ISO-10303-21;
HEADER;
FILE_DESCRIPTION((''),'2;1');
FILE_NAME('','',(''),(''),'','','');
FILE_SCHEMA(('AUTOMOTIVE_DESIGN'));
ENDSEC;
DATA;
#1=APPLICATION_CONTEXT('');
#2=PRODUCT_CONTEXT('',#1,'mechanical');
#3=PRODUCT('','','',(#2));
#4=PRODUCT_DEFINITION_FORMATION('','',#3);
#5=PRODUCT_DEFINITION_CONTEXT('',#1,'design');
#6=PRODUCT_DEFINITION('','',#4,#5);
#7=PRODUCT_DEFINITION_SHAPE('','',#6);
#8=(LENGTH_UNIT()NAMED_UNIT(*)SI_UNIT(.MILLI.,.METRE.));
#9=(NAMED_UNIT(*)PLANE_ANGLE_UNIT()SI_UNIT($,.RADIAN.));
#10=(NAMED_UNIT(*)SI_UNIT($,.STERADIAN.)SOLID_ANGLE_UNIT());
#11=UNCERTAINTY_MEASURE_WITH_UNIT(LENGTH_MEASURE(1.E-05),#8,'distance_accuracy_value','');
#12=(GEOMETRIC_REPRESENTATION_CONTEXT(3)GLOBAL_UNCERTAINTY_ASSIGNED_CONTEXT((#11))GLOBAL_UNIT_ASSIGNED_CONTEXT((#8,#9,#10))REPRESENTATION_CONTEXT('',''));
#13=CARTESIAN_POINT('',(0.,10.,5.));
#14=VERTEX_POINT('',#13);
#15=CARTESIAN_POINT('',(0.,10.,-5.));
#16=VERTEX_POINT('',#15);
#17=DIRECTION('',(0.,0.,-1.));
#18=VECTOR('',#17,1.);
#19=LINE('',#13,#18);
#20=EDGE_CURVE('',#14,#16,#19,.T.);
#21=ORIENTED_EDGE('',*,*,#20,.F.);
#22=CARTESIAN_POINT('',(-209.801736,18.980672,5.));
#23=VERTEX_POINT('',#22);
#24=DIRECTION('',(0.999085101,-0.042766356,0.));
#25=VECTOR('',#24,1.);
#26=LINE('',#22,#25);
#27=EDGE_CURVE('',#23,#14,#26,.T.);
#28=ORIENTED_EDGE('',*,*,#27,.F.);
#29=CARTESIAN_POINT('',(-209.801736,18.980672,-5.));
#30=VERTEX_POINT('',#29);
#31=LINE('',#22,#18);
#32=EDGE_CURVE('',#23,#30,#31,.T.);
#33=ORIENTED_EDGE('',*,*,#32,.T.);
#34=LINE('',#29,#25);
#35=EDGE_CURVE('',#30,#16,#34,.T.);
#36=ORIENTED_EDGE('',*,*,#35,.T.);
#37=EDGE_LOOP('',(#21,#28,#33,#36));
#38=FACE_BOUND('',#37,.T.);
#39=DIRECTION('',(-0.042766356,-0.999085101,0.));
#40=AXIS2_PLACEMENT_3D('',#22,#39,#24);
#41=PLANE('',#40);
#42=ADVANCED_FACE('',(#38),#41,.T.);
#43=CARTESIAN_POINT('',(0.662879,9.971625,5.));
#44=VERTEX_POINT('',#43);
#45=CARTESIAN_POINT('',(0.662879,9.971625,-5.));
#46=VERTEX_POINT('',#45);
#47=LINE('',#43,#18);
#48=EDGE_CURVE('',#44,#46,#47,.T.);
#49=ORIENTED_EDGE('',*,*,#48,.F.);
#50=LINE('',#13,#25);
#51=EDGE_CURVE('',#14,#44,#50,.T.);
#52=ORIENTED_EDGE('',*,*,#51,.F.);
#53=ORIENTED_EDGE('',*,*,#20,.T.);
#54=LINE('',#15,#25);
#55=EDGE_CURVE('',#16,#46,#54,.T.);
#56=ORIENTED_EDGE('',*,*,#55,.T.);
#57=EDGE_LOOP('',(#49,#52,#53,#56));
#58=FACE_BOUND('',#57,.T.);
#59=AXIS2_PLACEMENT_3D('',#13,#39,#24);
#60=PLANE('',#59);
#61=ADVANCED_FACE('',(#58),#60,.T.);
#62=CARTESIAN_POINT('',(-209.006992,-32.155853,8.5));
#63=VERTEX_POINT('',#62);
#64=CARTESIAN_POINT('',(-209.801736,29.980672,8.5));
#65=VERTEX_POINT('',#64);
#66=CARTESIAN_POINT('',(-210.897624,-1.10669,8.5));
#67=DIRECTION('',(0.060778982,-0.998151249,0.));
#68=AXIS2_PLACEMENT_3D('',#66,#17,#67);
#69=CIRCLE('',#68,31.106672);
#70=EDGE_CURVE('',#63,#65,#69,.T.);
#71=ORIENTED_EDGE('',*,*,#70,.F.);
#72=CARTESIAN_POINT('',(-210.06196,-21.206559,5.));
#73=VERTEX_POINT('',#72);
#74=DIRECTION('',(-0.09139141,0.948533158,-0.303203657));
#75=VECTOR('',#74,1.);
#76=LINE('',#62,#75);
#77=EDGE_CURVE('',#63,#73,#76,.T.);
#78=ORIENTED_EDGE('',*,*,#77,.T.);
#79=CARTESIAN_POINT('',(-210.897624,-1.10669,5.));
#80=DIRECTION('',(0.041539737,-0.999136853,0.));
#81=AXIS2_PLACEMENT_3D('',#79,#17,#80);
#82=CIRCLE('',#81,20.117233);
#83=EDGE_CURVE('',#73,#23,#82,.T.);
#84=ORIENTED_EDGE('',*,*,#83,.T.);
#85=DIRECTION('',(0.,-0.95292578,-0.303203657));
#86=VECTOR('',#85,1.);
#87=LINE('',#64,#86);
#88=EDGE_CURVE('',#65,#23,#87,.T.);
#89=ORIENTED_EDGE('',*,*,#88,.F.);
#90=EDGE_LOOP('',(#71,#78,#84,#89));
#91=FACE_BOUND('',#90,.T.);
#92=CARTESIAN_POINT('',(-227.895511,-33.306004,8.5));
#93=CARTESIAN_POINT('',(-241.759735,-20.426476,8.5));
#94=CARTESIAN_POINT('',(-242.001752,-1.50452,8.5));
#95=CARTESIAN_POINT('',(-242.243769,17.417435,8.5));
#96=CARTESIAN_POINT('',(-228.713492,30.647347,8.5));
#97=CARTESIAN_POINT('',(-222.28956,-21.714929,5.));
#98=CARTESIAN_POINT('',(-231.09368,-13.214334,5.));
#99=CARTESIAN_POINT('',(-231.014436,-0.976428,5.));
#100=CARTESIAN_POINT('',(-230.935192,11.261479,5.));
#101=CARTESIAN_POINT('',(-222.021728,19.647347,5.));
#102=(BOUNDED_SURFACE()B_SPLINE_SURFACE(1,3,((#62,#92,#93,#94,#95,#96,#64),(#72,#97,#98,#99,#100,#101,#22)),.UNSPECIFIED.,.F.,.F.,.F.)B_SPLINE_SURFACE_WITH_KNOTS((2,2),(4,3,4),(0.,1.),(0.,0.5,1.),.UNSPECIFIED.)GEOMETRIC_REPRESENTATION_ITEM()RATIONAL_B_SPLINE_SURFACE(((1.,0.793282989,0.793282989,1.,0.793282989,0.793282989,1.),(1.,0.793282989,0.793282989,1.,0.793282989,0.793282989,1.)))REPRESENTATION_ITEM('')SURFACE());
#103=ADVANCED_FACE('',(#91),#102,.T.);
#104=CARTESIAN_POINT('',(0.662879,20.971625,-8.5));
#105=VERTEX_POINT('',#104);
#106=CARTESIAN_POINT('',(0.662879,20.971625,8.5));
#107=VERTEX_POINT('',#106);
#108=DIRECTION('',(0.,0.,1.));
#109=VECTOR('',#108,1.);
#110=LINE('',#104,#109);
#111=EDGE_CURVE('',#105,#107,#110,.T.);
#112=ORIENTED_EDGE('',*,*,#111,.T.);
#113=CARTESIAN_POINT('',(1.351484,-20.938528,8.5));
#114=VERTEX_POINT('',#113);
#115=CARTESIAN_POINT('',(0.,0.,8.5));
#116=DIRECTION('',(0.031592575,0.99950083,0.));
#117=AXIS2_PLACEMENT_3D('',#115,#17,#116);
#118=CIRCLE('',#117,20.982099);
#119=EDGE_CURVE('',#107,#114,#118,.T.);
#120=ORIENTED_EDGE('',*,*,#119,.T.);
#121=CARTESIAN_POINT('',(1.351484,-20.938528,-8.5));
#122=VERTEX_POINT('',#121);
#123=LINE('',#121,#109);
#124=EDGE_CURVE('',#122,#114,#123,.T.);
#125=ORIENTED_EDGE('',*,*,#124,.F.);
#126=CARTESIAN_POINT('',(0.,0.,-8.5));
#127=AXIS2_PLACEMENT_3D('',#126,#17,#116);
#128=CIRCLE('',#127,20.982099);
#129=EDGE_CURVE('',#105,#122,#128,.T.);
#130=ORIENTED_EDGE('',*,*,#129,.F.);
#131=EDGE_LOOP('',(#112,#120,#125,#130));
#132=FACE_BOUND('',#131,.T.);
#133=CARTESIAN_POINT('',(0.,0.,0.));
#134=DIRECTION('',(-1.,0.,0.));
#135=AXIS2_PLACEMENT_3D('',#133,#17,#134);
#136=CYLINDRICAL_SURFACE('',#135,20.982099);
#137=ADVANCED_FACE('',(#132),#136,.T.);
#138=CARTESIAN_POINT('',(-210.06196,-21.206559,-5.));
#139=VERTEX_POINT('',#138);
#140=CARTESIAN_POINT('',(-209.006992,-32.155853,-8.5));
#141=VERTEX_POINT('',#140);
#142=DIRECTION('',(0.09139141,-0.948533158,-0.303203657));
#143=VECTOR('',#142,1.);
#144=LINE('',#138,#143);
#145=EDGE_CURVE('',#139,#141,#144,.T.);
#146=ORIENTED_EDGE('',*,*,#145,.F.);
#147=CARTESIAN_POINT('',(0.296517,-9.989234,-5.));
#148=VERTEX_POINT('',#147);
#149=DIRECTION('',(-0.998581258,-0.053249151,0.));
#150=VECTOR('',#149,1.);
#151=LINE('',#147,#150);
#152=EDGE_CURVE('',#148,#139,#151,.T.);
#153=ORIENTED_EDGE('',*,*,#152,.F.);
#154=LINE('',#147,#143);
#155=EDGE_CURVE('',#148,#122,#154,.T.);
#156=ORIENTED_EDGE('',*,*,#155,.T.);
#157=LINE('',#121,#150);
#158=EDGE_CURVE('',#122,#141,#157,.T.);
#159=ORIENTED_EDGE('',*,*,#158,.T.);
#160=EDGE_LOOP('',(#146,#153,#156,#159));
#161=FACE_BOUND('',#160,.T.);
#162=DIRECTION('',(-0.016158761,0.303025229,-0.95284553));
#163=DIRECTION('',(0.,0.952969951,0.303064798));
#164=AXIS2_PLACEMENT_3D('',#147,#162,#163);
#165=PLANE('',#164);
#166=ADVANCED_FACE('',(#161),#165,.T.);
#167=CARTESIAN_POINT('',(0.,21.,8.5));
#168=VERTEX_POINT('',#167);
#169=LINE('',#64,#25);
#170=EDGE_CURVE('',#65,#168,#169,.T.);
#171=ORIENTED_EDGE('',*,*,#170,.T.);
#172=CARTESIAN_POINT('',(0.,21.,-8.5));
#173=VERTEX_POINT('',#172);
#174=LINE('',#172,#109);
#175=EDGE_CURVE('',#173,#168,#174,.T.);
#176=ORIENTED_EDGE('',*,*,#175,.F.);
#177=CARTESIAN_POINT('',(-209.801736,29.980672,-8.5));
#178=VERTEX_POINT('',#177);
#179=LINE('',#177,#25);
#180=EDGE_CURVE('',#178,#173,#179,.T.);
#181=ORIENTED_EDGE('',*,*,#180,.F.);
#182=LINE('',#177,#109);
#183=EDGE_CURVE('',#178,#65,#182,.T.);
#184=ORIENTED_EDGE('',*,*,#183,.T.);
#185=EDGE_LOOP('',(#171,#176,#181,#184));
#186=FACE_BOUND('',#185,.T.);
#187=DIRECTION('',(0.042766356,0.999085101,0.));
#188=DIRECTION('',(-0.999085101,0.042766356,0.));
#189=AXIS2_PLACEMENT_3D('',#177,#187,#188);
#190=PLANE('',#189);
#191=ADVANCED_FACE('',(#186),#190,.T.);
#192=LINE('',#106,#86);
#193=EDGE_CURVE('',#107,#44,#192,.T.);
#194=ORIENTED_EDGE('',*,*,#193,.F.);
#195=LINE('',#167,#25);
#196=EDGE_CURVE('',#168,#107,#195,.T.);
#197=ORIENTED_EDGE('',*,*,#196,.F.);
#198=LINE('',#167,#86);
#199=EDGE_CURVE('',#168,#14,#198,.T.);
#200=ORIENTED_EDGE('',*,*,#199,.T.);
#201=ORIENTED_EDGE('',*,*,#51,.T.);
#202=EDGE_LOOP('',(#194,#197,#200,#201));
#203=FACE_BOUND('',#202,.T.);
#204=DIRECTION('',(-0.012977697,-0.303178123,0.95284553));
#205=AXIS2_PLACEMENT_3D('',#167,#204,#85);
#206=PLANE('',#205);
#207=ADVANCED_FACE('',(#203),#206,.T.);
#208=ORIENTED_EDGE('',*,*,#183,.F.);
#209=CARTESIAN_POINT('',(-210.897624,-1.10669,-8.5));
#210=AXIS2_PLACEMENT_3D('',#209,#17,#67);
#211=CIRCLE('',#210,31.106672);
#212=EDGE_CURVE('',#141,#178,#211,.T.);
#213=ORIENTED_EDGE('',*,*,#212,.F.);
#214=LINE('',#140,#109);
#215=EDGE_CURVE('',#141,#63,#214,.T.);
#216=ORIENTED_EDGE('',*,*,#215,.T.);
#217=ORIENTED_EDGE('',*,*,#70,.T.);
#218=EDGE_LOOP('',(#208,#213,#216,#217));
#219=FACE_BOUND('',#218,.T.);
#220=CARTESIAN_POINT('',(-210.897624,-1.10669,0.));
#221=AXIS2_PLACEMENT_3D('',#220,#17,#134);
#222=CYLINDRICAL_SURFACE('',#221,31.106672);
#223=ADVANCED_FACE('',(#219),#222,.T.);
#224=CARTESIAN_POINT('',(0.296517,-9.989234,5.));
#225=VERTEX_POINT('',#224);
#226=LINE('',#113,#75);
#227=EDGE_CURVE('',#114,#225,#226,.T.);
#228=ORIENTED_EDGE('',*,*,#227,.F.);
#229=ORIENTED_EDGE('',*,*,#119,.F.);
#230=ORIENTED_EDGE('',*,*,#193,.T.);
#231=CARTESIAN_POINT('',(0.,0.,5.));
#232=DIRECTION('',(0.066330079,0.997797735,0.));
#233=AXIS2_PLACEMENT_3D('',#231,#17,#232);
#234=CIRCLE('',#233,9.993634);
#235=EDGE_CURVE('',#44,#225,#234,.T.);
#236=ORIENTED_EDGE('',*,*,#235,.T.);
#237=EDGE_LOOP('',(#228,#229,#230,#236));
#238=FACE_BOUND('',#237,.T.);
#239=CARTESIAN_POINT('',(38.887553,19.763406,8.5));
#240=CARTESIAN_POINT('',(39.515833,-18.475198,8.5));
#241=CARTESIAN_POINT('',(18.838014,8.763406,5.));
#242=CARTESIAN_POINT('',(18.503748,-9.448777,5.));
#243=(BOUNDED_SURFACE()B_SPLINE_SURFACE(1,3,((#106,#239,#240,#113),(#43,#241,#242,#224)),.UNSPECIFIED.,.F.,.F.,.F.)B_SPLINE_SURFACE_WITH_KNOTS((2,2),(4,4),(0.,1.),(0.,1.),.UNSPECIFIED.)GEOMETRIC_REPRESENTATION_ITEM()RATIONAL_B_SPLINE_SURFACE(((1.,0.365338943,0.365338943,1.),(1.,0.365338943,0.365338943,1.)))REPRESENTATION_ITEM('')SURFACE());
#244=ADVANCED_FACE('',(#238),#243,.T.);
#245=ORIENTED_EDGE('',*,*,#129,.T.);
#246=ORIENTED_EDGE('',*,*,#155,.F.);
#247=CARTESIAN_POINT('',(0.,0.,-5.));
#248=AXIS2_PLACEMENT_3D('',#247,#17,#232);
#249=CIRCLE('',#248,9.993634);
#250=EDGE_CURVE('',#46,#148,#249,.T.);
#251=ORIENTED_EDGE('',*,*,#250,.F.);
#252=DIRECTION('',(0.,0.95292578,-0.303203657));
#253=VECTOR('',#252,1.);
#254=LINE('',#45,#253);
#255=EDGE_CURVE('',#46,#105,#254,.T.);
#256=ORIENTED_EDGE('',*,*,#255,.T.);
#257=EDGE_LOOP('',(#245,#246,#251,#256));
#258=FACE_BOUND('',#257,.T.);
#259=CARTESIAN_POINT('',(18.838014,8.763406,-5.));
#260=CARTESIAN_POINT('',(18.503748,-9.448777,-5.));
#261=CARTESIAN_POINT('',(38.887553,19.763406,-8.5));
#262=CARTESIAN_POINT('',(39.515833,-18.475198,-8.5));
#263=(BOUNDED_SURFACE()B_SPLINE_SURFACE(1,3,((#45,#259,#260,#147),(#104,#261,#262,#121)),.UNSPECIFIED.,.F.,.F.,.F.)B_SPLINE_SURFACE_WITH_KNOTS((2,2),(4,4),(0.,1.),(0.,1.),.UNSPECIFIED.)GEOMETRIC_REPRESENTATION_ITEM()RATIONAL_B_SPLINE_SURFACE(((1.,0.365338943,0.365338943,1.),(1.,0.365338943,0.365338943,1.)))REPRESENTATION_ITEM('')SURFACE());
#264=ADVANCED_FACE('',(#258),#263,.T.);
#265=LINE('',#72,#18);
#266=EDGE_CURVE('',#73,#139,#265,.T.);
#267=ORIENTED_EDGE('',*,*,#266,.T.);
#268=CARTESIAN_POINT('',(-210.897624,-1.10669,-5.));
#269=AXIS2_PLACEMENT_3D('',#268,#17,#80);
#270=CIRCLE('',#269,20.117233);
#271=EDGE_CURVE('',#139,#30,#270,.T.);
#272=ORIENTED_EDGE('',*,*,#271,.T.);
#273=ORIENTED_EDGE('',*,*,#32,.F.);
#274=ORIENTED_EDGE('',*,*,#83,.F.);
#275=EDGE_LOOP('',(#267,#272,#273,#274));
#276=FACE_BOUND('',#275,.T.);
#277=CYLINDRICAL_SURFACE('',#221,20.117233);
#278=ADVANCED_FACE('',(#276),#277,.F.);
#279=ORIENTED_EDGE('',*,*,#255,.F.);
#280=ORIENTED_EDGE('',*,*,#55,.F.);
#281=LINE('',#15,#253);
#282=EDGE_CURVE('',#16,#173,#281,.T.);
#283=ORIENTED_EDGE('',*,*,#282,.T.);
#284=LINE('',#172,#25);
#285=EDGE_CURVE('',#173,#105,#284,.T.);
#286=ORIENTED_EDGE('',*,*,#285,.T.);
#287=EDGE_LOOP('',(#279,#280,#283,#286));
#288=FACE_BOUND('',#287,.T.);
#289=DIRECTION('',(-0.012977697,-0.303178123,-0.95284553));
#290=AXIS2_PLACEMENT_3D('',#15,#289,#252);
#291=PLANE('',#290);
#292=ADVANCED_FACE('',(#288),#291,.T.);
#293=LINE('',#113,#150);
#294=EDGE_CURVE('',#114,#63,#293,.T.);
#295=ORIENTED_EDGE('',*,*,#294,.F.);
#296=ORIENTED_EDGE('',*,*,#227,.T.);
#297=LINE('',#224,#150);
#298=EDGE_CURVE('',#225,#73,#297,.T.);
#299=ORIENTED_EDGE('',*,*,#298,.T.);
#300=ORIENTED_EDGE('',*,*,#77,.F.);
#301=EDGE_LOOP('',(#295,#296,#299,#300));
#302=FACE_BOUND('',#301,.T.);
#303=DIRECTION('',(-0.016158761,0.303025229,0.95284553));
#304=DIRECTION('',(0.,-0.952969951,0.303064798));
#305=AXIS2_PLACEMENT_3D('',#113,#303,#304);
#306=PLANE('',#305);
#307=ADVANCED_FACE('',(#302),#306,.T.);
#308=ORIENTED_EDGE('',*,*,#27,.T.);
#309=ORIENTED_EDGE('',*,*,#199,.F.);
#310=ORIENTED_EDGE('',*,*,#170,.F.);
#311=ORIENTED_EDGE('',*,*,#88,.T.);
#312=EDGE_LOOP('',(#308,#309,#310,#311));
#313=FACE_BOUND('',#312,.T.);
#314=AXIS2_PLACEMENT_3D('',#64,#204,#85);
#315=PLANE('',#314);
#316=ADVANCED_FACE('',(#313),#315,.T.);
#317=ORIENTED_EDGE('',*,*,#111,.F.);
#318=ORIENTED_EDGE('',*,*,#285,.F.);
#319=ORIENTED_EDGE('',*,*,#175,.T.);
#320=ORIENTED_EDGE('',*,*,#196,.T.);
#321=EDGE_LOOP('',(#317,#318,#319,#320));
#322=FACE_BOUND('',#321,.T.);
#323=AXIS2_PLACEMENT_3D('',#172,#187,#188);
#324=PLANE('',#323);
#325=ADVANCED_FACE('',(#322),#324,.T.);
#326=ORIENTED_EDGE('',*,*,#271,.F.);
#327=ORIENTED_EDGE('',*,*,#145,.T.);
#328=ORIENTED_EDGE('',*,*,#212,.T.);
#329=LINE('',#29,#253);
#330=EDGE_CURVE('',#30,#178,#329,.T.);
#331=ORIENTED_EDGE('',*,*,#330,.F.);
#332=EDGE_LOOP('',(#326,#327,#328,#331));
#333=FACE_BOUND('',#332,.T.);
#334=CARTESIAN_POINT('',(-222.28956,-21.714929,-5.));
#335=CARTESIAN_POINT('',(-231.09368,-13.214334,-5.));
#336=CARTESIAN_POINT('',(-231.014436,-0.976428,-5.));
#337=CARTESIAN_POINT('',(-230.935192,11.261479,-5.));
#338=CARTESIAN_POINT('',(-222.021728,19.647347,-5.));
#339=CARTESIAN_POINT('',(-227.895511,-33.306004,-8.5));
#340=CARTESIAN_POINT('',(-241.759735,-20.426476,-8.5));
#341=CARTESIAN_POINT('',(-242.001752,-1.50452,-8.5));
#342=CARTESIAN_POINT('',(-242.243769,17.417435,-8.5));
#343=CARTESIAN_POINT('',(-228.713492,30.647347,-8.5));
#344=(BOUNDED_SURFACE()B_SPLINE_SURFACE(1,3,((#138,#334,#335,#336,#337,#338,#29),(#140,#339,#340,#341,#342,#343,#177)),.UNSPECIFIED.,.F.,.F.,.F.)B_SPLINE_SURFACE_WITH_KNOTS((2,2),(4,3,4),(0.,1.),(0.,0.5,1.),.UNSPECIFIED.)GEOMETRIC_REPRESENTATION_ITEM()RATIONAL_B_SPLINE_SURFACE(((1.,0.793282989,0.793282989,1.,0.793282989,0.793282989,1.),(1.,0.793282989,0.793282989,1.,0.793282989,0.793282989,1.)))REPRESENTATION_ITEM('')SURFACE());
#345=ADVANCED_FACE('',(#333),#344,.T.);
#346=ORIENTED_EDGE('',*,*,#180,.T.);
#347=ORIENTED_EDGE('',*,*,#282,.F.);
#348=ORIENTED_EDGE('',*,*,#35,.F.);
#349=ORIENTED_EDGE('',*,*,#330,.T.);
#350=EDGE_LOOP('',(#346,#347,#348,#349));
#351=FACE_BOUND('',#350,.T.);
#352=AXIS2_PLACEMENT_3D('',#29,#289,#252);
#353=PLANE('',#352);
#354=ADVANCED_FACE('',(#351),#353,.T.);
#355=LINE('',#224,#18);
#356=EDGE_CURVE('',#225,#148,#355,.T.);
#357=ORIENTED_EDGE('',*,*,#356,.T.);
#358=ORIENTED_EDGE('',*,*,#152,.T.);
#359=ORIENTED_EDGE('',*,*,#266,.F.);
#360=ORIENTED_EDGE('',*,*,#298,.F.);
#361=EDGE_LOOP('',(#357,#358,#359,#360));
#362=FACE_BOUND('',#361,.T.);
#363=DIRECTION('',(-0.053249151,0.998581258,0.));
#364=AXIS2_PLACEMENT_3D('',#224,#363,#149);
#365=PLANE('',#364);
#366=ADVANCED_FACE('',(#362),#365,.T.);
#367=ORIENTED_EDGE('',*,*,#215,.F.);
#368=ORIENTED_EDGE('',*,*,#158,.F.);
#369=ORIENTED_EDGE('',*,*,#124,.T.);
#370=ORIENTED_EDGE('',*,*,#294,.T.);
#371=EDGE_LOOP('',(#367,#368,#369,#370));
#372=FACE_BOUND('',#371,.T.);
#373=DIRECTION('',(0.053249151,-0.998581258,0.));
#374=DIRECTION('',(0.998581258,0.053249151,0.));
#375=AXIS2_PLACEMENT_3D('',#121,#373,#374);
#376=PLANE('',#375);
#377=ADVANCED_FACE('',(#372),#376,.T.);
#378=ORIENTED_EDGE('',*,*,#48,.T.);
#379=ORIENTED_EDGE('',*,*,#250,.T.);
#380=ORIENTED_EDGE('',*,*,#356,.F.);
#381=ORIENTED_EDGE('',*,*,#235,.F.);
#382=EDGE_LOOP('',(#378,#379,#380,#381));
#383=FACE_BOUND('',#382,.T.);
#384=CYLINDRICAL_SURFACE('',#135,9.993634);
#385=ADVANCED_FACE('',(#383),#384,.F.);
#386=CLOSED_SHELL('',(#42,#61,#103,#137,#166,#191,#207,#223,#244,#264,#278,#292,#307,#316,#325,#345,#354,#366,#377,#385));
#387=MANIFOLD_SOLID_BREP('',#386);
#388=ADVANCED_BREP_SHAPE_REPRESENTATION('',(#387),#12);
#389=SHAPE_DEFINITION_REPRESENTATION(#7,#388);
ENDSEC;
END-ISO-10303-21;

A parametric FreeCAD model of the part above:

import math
import FreeCAD as App
import Part
import Sketcher
from FreeCAD import Vector


def add_polygon(sketch, points):
    """Adds a closed chain of lines whose ends are joined by coincident constraints."""
    first, n = sketch.GeometryCount, len(points)
    for a, b in zip(points, points[1:] + points[:1]):
        sketch.addGeometry(Part.LineSegment(App.Vector(*a, 0), App.Vector(*b, 0)), False)
    for i in range(n):
        sketch.addConstraint(Sketcher.Constraint("Coincident", first + i, 2, first + (i + 1) % n, 1))

doc = App.newDocument("Part")
body = doc.addObject("PartDesign::Body", "Body")

sketch1 = doc.addObject("Sketcher::SketchObject", "Sketch")
body.addObject(sketch1)
sketch1.AttachmentSupport = (doc.YZ_Plane, [""])
sketch1.MapMode = "FlatFace"
add_polygon(sketch1, [(21, -8), (21, 8), (10, 5), (10, -5)])
sketch1.addConstraint([
    Sketcher.Constraint("Vertical", 0),
    Sketcher.Constraint("Vertical", 2),
    Sketcher.Constraint("Equal", 1, 3),
    Sketcher.Constraint("DistanceY", 0, 1, 0, 2, 17.0),
    Sketcher.Constraint("DistanceY", 2, 2, 2, 1, 10.0),
    Sketcher.Constraint("DistanceX", -1, 1, 0, 2, 21.0),
    Sketcher.Constraint("DistanceX", -1, 1, 1, 2, 10.0),
    Sketcher.Constraint("DistanceY", -1, 1, 1, 2, 5.0),
])

sketch2 = doc.addObject("Sketcher::SketchObject", "Sketch001")
body.addObject(sketch2)
sketch2.AttachmentSupport = (doc.XY_Plane, [""])
sketch2.MapMode = "FlatFace"
sketch2.addGeometry([
    Part.LineSegment(Vector(1, 15, 0), Vector(-210, 24, 0)),
    Part.ArcOfCircle(Part.Circle(Vector(-211, -1, 0), Vector(0, 0, 1), 26), math.radians(88), math.radians(273)),
    Part.LineSegment(Vector(-210, -27, 0), Vector(1, -15, 0)),
    Part.ArcOfCircle(Part.Circle(Vector(0, 0, 0), Vector(0, 0, 1), 16), math.radians(-87), math.radians(88)),
], False)
sketch2.addConstraint([
    Sketcher.Constraint("Tangent", 0, 2, 1, 1),
    Sketcher.Constraint("Tangent", 1, 2, 2, 1),
    Sketcher.Constraint("Tangent", 2, 2, 3, 1),
    Sketcher.Constraint("Tangent", 3, 2, 0, 1),
    Sketcher.Constraint("Coincident", 3, 3, -1, 1),
    Sketcher.Constraint("Radius", 3, 15.5),
    Sketcher.Constraint("Radius", 1, 25.625),
    Sketcher.Constraint("DistanceX", 0, 2, 2, 2, 210.627098),
    Sketcher.Constraint("DistanceY", 1, 3, -1, 1, 1.10669),
])
doc.recompute()

additivepipe = doc.addObject("PartDesign::AdditivePipe", "AdditivePipe")
body.addObject(additivepipe)
additivepipe.Profile = sketch1
additivepipe.Spine = (sketch2, ["Edge1", "Edge2", "Edge3", "Edge4"])

doc.recompute()
